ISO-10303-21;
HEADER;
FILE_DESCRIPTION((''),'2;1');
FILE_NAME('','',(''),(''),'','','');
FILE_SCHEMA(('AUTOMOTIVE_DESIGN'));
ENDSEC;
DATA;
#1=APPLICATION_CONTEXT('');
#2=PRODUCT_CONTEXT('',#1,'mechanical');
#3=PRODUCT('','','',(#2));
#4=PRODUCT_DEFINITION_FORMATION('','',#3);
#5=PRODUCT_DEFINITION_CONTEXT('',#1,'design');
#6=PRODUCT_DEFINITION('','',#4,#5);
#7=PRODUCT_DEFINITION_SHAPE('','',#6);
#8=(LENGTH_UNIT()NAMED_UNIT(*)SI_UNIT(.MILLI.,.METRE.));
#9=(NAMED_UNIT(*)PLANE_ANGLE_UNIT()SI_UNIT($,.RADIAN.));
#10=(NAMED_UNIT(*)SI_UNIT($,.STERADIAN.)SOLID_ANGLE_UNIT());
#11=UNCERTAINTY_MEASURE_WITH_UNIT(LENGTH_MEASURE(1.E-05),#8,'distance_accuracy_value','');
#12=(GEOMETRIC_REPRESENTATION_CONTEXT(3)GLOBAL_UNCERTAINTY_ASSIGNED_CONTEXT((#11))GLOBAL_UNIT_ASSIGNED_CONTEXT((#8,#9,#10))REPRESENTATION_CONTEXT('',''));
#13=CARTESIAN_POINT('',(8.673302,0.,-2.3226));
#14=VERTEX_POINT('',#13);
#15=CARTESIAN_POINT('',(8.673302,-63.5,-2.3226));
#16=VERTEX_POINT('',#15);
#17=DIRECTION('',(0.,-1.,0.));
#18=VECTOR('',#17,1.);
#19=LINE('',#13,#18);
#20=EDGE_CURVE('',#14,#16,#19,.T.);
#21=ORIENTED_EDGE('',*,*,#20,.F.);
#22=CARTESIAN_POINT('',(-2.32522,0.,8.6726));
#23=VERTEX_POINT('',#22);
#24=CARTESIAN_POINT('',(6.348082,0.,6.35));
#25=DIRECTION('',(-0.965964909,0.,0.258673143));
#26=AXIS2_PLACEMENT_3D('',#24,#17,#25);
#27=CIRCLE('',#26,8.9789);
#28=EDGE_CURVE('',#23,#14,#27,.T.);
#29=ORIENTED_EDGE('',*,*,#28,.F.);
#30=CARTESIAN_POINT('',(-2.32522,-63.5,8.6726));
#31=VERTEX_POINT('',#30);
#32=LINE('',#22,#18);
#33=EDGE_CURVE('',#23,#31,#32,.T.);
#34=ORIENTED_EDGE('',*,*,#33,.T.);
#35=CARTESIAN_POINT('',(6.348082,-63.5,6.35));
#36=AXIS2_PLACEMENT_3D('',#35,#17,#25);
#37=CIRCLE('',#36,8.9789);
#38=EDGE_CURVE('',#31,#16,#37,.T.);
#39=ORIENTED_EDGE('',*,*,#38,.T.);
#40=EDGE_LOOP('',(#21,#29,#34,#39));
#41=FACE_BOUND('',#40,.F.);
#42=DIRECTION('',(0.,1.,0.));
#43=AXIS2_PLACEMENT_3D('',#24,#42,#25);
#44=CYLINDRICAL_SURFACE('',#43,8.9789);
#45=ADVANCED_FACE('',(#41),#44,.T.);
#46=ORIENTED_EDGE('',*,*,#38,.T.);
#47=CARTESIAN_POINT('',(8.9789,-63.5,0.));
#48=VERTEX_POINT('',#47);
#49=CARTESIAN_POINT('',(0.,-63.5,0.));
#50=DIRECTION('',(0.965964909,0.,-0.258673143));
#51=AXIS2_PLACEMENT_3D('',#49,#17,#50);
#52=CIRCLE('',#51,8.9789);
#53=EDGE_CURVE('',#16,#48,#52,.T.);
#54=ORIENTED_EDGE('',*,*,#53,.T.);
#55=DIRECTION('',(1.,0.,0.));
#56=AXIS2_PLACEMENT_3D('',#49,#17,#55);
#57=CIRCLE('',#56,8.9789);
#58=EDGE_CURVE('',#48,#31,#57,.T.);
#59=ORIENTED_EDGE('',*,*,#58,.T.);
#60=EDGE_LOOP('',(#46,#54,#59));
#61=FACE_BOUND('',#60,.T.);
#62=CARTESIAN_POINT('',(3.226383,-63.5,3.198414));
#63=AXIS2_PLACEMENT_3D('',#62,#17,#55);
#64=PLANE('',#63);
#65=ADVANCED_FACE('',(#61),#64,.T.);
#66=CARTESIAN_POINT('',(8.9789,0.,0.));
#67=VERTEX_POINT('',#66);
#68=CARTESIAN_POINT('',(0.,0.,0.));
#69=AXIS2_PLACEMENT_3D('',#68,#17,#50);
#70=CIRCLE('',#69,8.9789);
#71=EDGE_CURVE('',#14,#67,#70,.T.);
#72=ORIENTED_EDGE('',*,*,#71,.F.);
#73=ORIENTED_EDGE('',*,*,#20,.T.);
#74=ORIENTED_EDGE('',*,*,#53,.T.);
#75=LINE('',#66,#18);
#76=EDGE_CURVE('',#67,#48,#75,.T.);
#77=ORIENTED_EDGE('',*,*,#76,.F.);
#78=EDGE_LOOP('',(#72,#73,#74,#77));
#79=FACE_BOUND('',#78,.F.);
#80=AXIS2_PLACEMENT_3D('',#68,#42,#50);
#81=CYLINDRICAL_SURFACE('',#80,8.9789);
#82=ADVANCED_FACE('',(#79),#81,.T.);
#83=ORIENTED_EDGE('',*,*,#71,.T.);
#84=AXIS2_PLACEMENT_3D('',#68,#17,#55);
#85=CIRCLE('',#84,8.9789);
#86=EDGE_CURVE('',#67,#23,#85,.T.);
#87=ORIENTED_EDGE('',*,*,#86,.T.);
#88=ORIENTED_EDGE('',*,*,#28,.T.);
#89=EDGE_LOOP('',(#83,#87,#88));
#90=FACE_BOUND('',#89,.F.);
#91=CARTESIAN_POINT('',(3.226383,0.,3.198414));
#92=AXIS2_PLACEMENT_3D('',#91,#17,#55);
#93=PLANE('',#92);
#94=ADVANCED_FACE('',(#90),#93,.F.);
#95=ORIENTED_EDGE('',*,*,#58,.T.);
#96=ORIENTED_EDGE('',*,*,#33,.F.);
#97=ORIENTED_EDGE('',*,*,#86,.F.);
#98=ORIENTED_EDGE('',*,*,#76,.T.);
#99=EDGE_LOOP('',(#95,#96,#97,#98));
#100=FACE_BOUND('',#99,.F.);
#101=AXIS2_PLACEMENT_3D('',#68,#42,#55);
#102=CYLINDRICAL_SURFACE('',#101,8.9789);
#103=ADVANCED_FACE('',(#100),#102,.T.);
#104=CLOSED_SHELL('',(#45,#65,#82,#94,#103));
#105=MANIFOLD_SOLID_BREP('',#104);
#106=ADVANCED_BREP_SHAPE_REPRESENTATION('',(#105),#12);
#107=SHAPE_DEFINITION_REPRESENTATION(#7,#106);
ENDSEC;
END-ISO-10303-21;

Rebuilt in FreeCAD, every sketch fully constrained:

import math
import FreeCAD as App
import Part
import Sketcher
Q = App.Units.Quantity

doc = App.newDocument("Part")
body = doc.addObject("PartDesign::Body", "Body")

# Sketch on XZ plane
sketch1 = doc.addObject("Sketcher::SketchObject", "Sketch")
body.addObject(sketch1)
sketch1.AttachmentSupport = (doc.XZ_Plane, [""])
sketch1.MapMode = "FlatFace"
sketch1.addGeometry([
    Part.ArcOfCircle(Part.Circle(App.Vector(0, 0, 0), App.Vector(0, 0, 1), 9), math.radians(-14.99), math.radians(0)),
    Part.ArcOfCircle(Part.Circle(App.Vector(0, 0, 0), App.Vector(0, 0, 1), 9), math.radians(0), math.radians(105)),
    Part.ArcOfCircle(Part.Circle(App.Vector(6.3, 6.3, 0), App.Vector(0, 0, 1), 9), math.radians(165), math.radians(285)),
], False)
sketch1.addConstraint([
    Sketcher.Constraint("Tangent", 0, 2, 1, 1),
    Sketcher.Constraint("Coincident", 1, 2, 2, 1),
    Sketcher.Constraint("Coincident", 2, 2, 0, 1),
    Sketcher.Constraint("Coincident", 0, 3, -1, 1),
    Sketcher.Constraint("Equal", 0, 1),
    Sketcher.Constraint("Equal", 1, 2),
    Sketcher.Constraint("PointOnObject", 0, 2, -1),
    Sketcher.Constraint("Radius", 0, Q("0.3535 in")),
    Sketcher.Constraint("DistanceY", -1, 1, 2, 3, Q("0.25 in")),
    Sketcher.Constraint("DistanceY", -1, 1, 1, 2, Q("8.6726 mm")),
])
pad1 = doc.addObject("PartDesign::Pad", "Pad")
body.addObject(pad1)
pad1.Profile = sketch1
pad1.Length = Q("2.5 in")

doc.recompute()
